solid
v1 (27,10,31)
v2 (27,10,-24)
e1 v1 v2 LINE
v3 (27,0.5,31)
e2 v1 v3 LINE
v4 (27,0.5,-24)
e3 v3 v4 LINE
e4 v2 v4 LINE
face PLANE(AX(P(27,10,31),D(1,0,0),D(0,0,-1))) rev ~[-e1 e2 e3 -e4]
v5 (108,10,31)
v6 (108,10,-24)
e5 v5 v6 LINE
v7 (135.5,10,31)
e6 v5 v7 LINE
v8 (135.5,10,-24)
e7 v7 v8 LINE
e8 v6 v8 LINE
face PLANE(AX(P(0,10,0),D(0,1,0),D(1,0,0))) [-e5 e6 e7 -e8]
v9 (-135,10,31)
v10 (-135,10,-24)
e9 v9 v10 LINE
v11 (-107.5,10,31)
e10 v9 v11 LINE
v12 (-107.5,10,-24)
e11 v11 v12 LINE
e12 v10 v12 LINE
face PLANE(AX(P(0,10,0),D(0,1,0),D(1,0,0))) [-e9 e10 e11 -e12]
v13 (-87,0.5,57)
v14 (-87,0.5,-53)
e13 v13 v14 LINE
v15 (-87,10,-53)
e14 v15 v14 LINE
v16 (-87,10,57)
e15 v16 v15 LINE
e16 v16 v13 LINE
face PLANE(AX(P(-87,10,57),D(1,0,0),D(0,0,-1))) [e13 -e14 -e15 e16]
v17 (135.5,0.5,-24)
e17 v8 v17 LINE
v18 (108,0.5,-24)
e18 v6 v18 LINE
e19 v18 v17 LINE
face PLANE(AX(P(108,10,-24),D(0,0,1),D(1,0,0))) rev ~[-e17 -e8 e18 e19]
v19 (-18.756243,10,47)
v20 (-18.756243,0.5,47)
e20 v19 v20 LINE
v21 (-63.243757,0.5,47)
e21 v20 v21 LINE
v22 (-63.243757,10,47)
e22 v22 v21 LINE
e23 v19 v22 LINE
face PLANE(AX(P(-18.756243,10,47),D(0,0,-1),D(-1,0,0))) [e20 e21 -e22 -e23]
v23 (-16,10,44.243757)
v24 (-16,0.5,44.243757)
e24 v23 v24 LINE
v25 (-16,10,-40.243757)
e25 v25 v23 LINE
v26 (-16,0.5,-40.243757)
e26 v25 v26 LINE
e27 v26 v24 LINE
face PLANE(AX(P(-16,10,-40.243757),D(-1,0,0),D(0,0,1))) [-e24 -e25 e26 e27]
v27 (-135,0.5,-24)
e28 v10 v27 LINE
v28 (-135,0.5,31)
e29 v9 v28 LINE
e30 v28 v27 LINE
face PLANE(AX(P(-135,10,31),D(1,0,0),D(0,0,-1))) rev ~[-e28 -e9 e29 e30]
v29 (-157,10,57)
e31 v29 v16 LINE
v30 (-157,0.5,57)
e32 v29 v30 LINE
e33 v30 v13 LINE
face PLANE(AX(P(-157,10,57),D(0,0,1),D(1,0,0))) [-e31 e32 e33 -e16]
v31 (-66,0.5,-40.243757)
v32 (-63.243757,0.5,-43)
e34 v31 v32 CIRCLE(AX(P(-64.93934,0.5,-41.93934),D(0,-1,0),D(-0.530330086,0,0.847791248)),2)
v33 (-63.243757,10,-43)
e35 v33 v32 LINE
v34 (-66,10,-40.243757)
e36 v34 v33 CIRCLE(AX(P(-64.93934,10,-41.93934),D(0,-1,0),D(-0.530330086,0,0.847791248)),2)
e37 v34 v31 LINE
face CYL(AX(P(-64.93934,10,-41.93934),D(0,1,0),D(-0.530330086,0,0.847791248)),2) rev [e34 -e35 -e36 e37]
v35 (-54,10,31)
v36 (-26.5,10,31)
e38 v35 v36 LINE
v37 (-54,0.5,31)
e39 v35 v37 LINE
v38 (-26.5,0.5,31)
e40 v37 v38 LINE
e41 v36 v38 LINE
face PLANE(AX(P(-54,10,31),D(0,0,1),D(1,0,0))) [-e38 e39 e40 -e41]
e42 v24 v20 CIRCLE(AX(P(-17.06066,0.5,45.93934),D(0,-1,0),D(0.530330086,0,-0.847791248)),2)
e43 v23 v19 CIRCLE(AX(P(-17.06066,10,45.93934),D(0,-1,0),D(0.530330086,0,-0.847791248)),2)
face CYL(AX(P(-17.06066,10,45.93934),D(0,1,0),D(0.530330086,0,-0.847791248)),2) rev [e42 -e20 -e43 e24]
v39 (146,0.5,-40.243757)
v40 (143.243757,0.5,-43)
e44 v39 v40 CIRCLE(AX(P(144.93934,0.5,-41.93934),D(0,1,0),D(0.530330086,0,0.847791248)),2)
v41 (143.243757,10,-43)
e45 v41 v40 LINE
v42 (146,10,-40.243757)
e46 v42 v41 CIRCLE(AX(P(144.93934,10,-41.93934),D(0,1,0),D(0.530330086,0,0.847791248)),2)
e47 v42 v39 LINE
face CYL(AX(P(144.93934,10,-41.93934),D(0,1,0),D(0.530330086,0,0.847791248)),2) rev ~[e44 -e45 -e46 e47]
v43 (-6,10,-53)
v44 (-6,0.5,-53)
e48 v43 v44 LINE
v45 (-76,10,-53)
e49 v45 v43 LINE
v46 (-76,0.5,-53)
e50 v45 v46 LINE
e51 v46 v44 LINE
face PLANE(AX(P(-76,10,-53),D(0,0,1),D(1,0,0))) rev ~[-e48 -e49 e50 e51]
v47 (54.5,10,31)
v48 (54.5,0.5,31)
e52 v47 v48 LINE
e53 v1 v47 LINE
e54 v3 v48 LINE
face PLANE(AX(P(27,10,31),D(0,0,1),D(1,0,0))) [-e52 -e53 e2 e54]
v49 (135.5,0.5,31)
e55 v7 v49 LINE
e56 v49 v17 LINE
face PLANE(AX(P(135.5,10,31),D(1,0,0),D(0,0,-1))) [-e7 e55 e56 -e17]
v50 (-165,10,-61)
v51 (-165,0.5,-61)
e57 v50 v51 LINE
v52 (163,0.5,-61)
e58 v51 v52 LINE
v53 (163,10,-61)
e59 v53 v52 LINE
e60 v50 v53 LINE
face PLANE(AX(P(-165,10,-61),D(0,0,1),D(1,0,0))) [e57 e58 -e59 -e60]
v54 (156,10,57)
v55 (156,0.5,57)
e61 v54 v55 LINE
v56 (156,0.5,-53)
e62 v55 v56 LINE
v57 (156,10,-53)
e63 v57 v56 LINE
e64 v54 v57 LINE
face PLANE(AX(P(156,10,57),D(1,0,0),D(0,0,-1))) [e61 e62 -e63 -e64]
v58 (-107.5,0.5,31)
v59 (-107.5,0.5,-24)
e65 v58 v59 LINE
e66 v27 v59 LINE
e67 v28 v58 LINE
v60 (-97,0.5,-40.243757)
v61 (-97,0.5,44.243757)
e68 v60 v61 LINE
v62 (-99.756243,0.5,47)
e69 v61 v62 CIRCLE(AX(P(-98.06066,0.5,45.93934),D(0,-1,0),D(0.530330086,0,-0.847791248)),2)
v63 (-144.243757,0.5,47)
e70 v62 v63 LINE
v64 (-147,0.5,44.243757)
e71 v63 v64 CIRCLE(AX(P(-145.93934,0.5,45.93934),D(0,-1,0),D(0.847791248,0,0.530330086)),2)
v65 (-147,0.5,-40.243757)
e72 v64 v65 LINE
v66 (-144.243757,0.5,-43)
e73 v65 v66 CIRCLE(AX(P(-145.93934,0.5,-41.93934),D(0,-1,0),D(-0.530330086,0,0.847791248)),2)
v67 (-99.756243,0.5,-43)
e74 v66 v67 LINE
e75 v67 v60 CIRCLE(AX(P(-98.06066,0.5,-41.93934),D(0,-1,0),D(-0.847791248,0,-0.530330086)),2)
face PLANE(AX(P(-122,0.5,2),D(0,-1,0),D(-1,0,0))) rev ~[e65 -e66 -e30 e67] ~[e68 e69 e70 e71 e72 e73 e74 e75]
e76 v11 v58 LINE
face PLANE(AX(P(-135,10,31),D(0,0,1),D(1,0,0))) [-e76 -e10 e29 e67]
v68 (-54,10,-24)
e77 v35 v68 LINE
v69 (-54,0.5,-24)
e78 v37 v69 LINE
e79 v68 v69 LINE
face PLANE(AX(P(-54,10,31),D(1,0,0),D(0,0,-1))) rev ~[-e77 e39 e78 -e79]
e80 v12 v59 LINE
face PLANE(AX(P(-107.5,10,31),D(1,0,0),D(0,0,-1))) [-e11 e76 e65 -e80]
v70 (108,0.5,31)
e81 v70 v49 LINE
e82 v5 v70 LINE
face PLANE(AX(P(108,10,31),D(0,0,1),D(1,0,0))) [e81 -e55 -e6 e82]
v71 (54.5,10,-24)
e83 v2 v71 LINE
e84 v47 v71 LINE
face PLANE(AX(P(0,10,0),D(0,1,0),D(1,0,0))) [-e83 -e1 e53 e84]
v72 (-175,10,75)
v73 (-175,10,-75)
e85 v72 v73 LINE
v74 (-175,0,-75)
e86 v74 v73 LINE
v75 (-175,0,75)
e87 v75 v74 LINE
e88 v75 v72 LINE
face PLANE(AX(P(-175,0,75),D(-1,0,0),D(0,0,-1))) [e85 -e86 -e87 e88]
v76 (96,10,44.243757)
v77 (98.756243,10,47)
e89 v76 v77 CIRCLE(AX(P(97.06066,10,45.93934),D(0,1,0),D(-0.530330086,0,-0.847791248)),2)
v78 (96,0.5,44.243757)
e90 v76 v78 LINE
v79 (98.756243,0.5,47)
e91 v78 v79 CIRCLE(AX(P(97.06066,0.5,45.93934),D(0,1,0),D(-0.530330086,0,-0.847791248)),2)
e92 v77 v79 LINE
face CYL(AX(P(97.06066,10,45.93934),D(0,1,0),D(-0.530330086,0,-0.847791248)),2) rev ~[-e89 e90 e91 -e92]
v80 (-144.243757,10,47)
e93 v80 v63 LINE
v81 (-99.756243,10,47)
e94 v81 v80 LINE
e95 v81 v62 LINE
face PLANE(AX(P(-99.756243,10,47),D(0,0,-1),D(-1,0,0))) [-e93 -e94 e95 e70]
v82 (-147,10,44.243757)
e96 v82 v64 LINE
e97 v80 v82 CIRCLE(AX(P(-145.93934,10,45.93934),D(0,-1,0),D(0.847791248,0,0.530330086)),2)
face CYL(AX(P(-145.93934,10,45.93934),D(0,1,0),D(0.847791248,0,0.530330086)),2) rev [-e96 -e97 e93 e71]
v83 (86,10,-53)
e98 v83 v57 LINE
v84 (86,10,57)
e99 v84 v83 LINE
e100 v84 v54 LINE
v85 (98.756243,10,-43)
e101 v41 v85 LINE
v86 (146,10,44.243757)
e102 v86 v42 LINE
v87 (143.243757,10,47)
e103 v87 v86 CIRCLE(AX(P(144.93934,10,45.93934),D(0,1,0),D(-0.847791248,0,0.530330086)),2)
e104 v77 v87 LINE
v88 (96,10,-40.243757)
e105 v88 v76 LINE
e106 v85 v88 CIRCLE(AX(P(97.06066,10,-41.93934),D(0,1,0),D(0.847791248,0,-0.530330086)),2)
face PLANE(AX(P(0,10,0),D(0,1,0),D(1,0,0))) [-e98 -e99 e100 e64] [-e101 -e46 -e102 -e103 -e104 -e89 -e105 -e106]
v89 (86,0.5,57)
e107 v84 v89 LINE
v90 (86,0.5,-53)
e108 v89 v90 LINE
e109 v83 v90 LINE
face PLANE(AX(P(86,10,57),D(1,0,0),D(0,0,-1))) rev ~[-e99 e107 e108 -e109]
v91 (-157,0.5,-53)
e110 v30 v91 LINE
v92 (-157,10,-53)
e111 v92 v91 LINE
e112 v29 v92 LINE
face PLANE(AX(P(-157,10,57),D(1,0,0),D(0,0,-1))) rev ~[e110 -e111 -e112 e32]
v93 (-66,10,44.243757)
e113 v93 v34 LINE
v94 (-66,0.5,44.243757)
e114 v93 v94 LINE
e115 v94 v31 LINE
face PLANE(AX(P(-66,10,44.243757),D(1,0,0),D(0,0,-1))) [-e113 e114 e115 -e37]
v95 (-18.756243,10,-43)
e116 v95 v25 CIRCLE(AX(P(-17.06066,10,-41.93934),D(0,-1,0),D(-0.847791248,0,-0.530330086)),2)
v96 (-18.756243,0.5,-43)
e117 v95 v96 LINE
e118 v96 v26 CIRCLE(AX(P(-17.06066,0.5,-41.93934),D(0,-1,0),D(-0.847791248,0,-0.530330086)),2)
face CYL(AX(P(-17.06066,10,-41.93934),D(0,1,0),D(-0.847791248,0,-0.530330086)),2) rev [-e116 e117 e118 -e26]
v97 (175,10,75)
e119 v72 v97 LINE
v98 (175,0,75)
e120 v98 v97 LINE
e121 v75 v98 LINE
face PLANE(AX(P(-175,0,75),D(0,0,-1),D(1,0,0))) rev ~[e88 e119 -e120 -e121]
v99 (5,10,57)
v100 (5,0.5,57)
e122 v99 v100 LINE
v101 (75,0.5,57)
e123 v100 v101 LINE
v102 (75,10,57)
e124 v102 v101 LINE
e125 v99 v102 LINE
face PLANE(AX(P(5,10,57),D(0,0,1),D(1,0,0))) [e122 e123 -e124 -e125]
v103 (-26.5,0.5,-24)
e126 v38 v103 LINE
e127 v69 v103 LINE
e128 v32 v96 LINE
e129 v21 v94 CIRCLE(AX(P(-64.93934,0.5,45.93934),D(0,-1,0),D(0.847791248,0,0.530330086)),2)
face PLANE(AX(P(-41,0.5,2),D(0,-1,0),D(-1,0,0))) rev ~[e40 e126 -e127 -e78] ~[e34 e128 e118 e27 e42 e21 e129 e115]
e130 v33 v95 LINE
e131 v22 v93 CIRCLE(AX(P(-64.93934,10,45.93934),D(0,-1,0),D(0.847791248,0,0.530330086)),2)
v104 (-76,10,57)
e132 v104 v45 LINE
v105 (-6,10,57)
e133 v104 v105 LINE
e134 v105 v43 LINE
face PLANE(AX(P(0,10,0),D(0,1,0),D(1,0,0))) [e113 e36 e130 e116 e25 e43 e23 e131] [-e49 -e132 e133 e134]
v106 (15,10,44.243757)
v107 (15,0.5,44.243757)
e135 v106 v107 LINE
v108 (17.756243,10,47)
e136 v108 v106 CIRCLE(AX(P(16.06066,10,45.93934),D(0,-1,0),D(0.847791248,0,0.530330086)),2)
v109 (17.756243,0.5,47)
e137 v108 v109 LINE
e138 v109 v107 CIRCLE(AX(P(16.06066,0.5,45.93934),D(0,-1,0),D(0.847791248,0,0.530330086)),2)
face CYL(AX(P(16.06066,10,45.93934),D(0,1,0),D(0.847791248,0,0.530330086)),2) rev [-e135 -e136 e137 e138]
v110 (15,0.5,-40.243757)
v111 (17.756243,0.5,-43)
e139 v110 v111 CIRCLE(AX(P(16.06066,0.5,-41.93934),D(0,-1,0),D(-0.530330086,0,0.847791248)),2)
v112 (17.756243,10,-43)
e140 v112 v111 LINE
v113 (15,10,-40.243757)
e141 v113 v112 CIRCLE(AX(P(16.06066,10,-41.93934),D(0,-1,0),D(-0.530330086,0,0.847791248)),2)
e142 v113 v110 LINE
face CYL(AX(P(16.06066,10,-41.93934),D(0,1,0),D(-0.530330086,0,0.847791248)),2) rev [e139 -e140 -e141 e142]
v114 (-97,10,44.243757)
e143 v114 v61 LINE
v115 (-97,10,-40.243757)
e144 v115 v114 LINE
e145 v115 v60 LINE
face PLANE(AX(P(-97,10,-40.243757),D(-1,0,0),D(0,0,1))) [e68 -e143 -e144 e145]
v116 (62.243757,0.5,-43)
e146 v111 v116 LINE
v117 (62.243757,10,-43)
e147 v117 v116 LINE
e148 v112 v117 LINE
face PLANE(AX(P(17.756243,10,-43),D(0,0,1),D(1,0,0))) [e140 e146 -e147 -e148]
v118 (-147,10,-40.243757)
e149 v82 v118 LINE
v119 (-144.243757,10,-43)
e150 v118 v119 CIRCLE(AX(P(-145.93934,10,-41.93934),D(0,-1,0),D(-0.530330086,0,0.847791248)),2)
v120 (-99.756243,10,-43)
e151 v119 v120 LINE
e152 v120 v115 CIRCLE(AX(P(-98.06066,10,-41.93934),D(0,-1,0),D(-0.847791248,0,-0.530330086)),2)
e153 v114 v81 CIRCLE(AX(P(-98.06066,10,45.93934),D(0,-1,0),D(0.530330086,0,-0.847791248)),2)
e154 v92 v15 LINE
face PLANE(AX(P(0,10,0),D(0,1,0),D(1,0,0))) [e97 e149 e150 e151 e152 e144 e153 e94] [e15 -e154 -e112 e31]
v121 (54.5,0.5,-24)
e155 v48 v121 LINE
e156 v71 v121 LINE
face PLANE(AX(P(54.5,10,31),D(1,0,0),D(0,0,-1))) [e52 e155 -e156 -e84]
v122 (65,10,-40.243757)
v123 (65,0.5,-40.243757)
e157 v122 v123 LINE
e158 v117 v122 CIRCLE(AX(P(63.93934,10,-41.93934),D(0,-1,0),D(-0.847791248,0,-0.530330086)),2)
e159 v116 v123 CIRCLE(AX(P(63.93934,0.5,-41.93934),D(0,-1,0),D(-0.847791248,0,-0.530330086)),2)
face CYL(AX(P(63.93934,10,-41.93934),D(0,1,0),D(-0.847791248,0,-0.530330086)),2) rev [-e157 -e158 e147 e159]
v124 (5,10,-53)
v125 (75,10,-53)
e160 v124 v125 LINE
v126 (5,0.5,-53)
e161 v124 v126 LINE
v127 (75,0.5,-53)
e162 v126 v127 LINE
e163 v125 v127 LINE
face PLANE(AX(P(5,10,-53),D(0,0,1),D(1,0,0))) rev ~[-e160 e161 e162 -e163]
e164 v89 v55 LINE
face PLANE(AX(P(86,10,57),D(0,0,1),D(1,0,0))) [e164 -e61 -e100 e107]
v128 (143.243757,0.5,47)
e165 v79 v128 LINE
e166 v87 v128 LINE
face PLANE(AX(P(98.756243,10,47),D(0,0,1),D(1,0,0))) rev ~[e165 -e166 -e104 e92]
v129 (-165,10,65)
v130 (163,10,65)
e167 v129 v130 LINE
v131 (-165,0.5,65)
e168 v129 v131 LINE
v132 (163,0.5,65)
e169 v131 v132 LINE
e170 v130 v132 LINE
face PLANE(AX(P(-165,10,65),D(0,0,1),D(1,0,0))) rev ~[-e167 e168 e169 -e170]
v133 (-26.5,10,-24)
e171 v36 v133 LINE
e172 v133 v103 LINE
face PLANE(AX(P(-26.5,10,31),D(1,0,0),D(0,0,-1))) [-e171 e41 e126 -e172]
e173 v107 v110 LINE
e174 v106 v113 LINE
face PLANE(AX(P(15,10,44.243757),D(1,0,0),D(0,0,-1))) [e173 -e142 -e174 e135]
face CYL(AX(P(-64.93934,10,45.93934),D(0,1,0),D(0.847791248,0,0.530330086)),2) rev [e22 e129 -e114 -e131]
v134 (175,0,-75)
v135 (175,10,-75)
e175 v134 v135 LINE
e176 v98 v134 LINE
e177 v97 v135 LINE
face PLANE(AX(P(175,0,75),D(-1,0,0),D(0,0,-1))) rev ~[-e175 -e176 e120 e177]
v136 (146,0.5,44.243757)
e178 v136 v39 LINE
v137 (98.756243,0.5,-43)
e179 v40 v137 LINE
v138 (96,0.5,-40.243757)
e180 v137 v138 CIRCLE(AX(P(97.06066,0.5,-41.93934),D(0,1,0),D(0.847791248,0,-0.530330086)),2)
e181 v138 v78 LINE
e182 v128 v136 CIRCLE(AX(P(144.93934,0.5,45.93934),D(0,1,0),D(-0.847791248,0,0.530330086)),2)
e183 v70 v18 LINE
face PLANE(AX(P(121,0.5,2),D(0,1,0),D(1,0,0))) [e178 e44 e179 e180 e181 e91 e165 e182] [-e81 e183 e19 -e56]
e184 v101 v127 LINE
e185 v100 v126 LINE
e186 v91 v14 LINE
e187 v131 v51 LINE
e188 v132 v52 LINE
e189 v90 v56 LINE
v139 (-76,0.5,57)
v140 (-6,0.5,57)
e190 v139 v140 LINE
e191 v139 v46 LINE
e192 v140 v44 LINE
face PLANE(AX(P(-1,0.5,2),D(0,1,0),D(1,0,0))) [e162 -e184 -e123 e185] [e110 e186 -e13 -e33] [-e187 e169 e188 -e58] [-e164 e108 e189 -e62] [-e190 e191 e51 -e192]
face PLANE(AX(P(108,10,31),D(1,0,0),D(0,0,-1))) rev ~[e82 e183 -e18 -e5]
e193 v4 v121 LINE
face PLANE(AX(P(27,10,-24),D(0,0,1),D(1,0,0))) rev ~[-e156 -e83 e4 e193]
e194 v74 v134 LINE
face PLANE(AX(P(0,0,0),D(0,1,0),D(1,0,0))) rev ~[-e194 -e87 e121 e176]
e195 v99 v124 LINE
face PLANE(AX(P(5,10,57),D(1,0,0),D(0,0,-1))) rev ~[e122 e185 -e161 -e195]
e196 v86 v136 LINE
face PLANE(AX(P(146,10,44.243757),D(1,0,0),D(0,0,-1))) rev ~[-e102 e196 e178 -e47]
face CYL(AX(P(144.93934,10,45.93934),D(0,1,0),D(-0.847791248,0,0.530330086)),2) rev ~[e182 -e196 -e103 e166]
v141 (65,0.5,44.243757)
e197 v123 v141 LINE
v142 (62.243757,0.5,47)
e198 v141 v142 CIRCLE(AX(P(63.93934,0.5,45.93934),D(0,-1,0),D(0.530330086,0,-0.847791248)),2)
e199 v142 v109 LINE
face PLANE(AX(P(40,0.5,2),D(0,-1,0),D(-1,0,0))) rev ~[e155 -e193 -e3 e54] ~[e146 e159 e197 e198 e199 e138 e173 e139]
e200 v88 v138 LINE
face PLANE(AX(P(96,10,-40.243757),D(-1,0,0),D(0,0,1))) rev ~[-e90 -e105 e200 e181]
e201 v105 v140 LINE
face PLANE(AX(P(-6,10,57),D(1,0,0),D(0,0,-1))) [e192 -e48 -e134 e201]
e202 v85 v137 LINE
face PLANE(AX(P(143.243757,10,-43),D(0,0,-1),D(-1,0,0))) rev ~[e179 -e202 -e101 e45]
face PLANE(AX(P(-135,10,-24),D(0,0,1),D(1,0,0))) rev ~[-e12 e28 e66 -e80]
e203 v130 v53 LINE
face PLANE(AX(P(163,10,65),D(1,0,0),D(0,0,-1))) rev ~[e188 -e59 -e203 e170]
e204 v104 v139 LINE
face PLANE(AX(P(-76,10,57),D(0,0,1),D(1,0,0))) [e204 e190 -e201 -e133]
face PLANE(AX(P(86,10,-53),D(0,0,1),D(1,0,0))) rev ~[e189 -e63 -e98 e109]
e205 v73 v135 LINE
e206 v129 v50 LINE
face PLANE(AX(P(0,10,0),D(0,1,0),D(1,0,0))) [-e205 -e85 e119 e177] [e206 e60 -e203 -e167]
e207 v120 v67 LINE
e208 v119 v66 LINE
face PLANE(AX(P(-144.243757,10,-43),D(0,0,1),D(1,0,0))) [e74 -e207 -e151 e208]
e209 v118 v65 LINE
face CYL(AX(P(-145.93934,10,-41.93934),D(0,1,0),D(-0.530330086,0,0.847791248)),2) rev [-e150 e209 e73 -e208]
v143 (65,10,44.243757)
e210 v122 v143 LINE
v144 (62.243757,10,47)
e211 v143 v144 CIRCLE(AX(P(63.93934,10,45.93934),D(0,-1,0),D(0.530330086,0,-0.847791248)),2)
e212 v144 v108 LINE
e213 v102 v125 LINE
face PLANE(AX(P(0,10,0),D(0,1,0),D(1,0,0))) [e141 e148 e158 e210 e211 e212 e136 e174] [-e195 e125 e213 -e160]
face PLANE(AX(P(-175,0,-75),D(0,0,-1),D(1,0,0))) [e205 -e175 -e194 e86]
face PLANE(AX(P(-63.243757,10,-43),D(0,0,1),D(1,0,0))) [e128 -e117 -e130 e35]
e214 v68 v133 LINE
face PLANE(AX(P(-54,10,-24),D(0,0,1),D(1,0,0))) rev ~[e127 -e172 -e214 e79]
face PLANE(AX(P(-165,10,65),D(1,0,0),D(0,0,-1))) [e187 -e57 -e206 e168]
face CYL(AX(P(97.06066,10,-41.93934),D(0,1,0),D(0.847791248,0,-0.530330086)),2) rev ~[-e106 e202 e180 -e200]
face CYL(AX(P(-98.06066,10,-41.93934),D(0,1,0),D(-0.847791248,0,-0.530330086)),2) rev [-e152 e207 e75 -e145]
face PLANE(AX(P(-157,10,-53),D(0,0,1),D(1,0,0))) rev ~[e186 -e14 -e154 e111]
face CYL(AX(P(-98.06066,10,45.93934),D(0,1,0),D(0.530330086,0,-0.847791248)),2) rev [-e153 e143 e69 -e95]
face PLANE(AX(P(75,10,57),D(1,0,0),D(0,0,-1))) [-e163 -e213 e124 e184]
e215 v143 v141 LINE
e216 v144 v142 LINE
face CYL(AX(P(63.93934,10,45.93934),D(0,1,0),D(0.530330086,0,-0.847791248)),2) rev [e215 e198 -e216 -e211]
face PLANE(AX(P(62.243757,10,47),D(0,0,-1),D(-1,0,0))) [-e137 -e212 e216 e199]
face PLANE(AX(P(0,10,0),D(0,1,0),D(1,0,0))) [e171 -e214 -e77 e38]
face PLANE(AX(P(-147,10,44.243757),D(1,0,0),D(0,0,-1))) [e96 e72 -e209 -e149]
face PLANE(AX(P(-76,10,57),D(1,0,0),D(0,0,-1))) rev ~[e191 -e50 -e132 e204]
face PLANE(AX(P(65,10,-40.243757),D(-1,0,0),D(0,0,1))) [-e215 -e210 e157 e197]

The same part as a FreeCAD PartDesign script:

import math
import FreeCAD as App
import Part
import Sketcher

V = App.Vector

doc = App.newDocument("Part")
body = doc.addObject("PartDesign::Body", "Body")

sketch1 = body.newObject("Sketcher::SketchObject", "Sketch")
sketch1.AttachmentSupport = (doc.getObject("XZ_Plane"), [""])
sketch1.MapMode = "FlatFace"
sketch1.addGeometry(Part.LineSegment(V(-175, -75, 0), V(-175, 75, 0)), False)
sketch1.addGeometry(Part.LineSegment(V(-175, 75, 0), V(175, 75, 0)), False)
sketch1.addGeometry(Part.LineSegment(V(175, 75, 0), V(175, -75, 0)), False)
sketch1.addGeometry(Part.LineSegment(V(175, -75, 0), V(-175, -75, 0)), False)
sketch1.addConstraint(Sketcher.Constraint("Coincident", 0, 2, 1, 1))
sketch1.addConstraint(Sketcher.Constraint("Coincident", 1, 2, 2, 1))
sketch1.addConstraint(Sketcher.Constraint("Coincident", 2, 2, 3, 1))
sketch1.addConstraint(Sketcher.Constraint("Coincident", 3, 2, 0, 1))
sketch1.addConstraint(Sketcher.Constraint("Vertical", 0))
sketch1.addConstraint(Sketcher.Constraint("Horizontal", 1))
sketch1.addConstraint(Sketcher.Constraint("Vertical", 2))
sketch1.addConstraint(Sketcher.Constraint("Horizontal", 3))
sketch1.addConstraint(Sketcher.Constraint("Symmetric", 0, 2, 2, 2, -1, 1))
sketch1.addConstraint(Sketcher.Constraint("DistanceX", 1, 1, 1, 2, 350.0))
sketch1.addConstraint(Sketcher.Constraint("DistanceY", 0, 1, 0, 2, 150.0))
pad1 = body.newObject("PartDesign::Pad", "Pad")
pad1.Profile = sketch1
pad1.Length = 10
pad1.Reversed = True

sketch2 = body.newObject("Sketcher::SketchObject", "Sketch001")
sketch2.AttachmentSupport = (doc.getObject("XZ_Plane"), [""])
sketch2.MapMode = "FlatFace"
sketch2.AttachmentOffset = App.Placement(V(0, 0, -10), App.Rotation())
sketch2.addGeometry(Part.LineSegment(V(-165, -61, 0), V(-165, 65, 0)), False)
sketch2.addGeometry(Part.LineSegment(V(-165, 65, 0), V(163, 65, 0)), False)
sketch2.addGeometry(Part.LineSegment(V(163, 65, 0), V(163, -61, 0)), False)
sketch2.addGeometry(Part.LineSegment(V(163, -61, 0), V(-165, -61, 0)), False)
sketch2.addGeometry(Part.LineSegment(V(-87, 57, 0), V(-157, 57, 0)), False)
sketch2.addGeometry(Part.LineSegment(V(-157, 57, 0), V(-157, -53, 0)), False)
sketch2.addGeometry(Part.LineSegment(V(-157, -53, 0), V(-87, -53, 0)), False)
sketch2.addGeometry(Part.LineSegment(V(-87, -53, 0), V(-87, 57, 0)), False)
sketch2.addGeometry(Part.LineSegment(V(-6, 57, 0), V(-76, 57, 0)), False)
sketch2.addGeometry(Part.LineSegment(V(-76, 57, 0), V(-76, -53, 0)), False)
sketch2.addGeometry(Part.LineSegment(V(-76, -53, 0), V(-6, -53, 0)), False)
sketch2.addGeometry(Part.LineSegment(V(-6, -53, 0), V(-6, 57, 0)), False)
sketch2.addGeometry(Part.LineSegment(V(75, 57, 0), V(5, 57, 0)), False)
sketch2.addGeometry(Part.LineSegment(V(5, 57, 0), V(5, -53, 0)), False)
sketch2.addGeometry(Part.LineSegment(V(5, -53, 0), V(75, -53, 0)), False)
sketch2.addGeometry(Part.LineSegment(V(75, -53, 0), V(75, 57, 0)), False)
sketch2.addGeometry(Part.LineSegment(V(156, 57, 0), V(86, 57, 0)), False)
sketch2.addGeometry(Part.LineSegment(V(86, 57, 0), V(86, -53, 0)), False)
sketch2.addGeometry(Part.LineSegment(V(86, -53, 0), V(156, -53, 0)), False)
sketch2.addGeometry(Part.LineSegment(V(156, -53, 0), V(156, 57, 0)), False)
sketch2.addGeometry(Part.LineSegment(V(-147, -40.2, 0), V(-147, 44.2, 0)), False)
sketch2.addGeometry(Part.ArcOfCircle(Part.Circle(V(-145.9, 45.9, 0), V(0, 0, 1), 2), math.radians(32), math.radians(238)), False)
sketch2.addGeometry(Part.LineSegment(V(-144.2, 47, 0), V(-99.8, 47, 0)), False)
sketch2.addGeometry(Part.ArcOfCircle(Part.Circle(V(-98.1, 45.9, 0), V(0, 0, 1), 2), math.radians(-58), math.radians(148)), False)
sketch2.addGeometry(Part.LineSegment(V(-97, 44.2, 0), V(-97, -40.2, 0)), False)
sketch2.addGeometry(Part.ArcOfCircle(Part.Circle(V(-98.1, -41.9, 0), V(0, 0, 1), 2), math.radians(-148), math.radians(58)), False)
sketch2.addGeometry(Part.LineSegment(V(-99.8, -43, 0), V(-144.2, -43, 0)), False)
sketch2.addGeometry(Part.ArcOfCircle(Part.Circle(V(-145.9, -41.9, 0), V(0, 0, 1), 2), math.radians(122), math.radians(328)), False)
sketch2.addGeometry(Part.LineSegment(V(-135, 31, 0), V(-135, -24, 0)), False)
sketch2.addGeometry(Part.LineSegment(V(-135, -24, 0), V(-107.5, -24, 0)), False)
sketch2.addGeometry(Part.LineSegment(V(-107.5, -24, 0), V(-107.5, 31, 0)), False)
sketch2.addGeometry(Part.LineSegment(V(-107.5, 31, 0), V(-135, 31, 0)), False)
sketch2.addGeometry(Part.LineSegment(V(-66, -40.2, 0), V(-66, 44.2, 0)), False)
sketch2.addGeometry(Part.ArcOfCircle(Part.Circle(V(-64.9, 45.9, 0), V(0, 0, 1), 2), math.radians(32), math.radians(238)), False)
sketch2.addGeometry(Part.LineSegment(V(-63.2, 47, 0), V(-18.8, 47, 0)), False)
sketch2.addGeometry(Part.ArcOfCircle(Part.Circle(V(-17.1, 45.9, 0), V(0, 0, 1), 2), math.radians(-58), math.radians(148)), False)
sketch2.addGeometry(Part.LineSegment(V(-16, 44.2, 0), V(-16, -40.2, 0)), False)
sketch2.addGeometry(Part.ArcOfCircle(Part.Circle(V(-17.1, -41.9, 0), V(0, 0, 1), 2), math.radians(-148), math.radians(58)), False)
sketch2.addGeometry(Part.LineSegment(V(-18.8, -43, 0), V(-63.2, -43, 0)), False)
sketch2.addGeometry(Part.ArcOfCircle(Part.Circle(V(-64.9, -41.9, 0), V(0, 0, 1), 2), math.radians(122), math.radians(328)), False)
sketch2.addGeometry(Part.LineSegment(V(-54, 31, 0), V(-54, -24, 0)), False)
sketch2.addGeometry(Part.LineSegment(V(-54, -24, 0), V(-26.5, -24, 0)), False)
sketch2.addGeometry(Part.LineSegment(V(-26.5, -24, 0), V(-26.5, 31, 0)), False)
sketch2.addGeometry(Part.LineSegment(V(-26.5, 31, 0), V(-54, 31, 0)), False)
sketch2.addGeometry(Part.LineSegment(V(15, -40.2, 0), V(15, 44.2, 0)), False)
sketch2.addGeometry(Part.ArcOfCircle(Part.Circle(V(16.1, 45.9, 0), V(0, 0, 1), 2), math.radians(32), math.radians(238)), False)
sketch2.addGeometry(Part.LineSegment(V(17.8, 47, 0), V(62.2, 47, 0)), False)
sketch2.addGeometry(Part.ArcOfCircle(Part.Circle(V(63.9, 45.9, 0), V(0, 0, 1), 2), math.radians(-58), math.radians(148)), False)
sketch2.addGeometry(Part.LineSegment(V(65, 44.2, 0), V(65, -40.2, 0)), False)
sketch2.addGeometry(Part.ArcOfCircle(Part.Circle(V(63.9, -41.9, 0), V(0, 0, 1), 2), math.radians(-148), math.radians(58)), False)
sketch2.addGeometry(Part.LineSegment(V(62.2, -43, 0), V(17.8, -43, 0)), False)
sketch2.addGeometry(Part.ArcOfCircle(Part.Circle(V(16.1, -41.9, 0), V(0, 0, 1), 2), math.radians(122), math.radians(328)), False)
sketch2.addGeometry(Part.LineSegment(V(27, 31, 0), V(27, -24, 0)), False)
sketch2.addGeometry(Part.LineSegment(V(27, -24, 0), V(54.5, -24, 0)), False)
sketch2.addGeometry(Part.LineSegment(V(54.5, -24, 0), V(54.5, 31, 0)), False)
sketch2.addGeometry(Part.LineSegment(V(54.5, 31, 0), V(27, 31, 0)), False)
sketch2.addGeometry(Part.LineSegment(V(98.8, 47, 0), V(143.2, 47, 0)), False)
sketch2.addGeometry(Part.ArcOfCircle(Part.Circle(V(144.9, 45.9, 0), V(0, 0, 1), 2), math.radians(-58), math.radians(148)), False)
sketch2.addGeometry(Part.LineSegment(V(146, 44.2, 0), V(146, -40.2, 0)), False)
sketch2.addGeometry(Part.ArcOfCircle(Part.Circle(V(144.9, -41.9, 0), V(0, 0, 1), 2), math.radians(-148), math.radians(58)), False)
sketch2.addGeometry(Part.LineSegment(V(143.2, -43, 0), V(98.8, -43, 0)), False)
sketch2.addGeometry(Part.ArcOfCircle(Part.Circle(V(97.1, -41.9, 0), V(0, 0, 1), 2), math.radians(122), math.radians(328)), False)
sketch2.addGeometry(Part.LineSegment(V(96, -40.2, 0), V(96, 44.2, 0)), False)
sketch2.addGeometry(Part.ArcOfCircle(Part.Circle(V(97.1, 45.9, 0), V(0, 0, 1), 2), math.radians(32), math.radians(238)), False)
sketch2.addGeometry(Part.LineSegment(V(135.5, 31, 0), V(108, 31, 0)), False)
sketch2.addGeometry(Part.LineSegment(V(108, 31, 0), V(108, -24, 0)), False)
sketch2.addGeometry(Part.LineSegment(V(108, -24, 0), V(135.5, -24, 0)), False)
sketch2.addGeometry(Part.LineSegment(V(135.5, -24, 0), V(135.5, 31, 0)), False)
sketch2.addConstraint(Sketcher.Constraint("Coincident", 0, 2, 1, 1))
sketch2.addConstraint(Sketcher.Constraint("Coincident", 1, 2, 2, 1))
sketch2.addConstraint(Sketcher.Constraint("Coincident", 2, 2, 3, 1))
sketch2.addConstraint(Sketcher.Constraint("Coincident", 3, 2, 0, 1))
sketch2.addConstraint(Sketcher.Constraint("Coincident", 4, 2, 5, 1))
sketch2.addConstraint(Sketcher.Constraint("Coincident", 5, 2, 6, 1))
sketch2.addConstraint(Sketcher.Constraint("Coincident", 6, 2, 7, 1))
sketch2.addConstraint(Sketcher.Constraint("Coincident", 7, 2, 4, 1))
sketch2.addConstraint(Sketcher.Constraint("Coincident", 8, 2, 9, 1))
sketch2.addConstraint(Sketcher.Constraint("Coincident", 9, 2, 10, 1))
sketch2.addConstraint(Sketcher.Constraint("Coincident", 10, 2, 11, 1))
sketch2.addConstraint(Sketcher.Constraint("Coincident", 11, 2, 8, 1))
sketch2.addConstraint(Sketcher.Constraint("Coincident", 12, 2, 13, 1))
sketch2.addConstraint(Sketcher.Constraint("Coincident", 13, 2, 14, 1))
sketch2.addConstraint(Sketcher.Constraint("Coincident", 14, 2, 15, 1))
sketch2.addConstraint(Sketcher.Constraint("Coincident", 15, 2, 12, 1))
sketch2.addConstraint(Sketcher.Constraint("Coincident", 16, 2, 17, 1))
sketch2.addConstraint(Sketcher.Constraint("Coincident", 17, 2, 18, 1))
sketch2.addConstraint(Sketcher.Constraint("Coincident", 18, 2, 19, 1))
sketch2.addConstraint(Sketcher.Constraint("Coincident", 19, 2, 16, 1))
sketch2.addConstraint(Sketcher.Constraint("Coincident", 20, 2, 21, 2))
sketch2.addConstraint(Sketcher.Constraint("Coincident", 21, 1, 22, 1))
sketch2.addConstraint(Sketcher.Constraint("Coincident", 22, 2, 23, 2))
sketch2.addConstraint(Sketcher.Constraint("Coincident", 23, 1, 24, 1))
sketch2.addConstraint(Sketcher.Constraint("Coincident", 24, 2, 25, 2))
sketch2.addConstraint(Sketcher.Constraint("Coincident", 25, 1, 26, 1))
sketch2.addConstraint(Sketcher.Constraint("Coincident", 26, 2, 27, 2))
sketch2.addConstraint(Sketcher.Constraint("Coincident", 27, 1, 20, 1))
sketch2.addConstraint(Sketcher.Constraint("Coincident", 28, 2, 29, 1))
sketch2.addConstraint(Sketcher.Constraint("Coincident", 29, 2, 30, 1))
sketch2.addConstraint(Sketcher.Constraint("Coincident", 30, 2, 31, 1))
sketch2.addConstraint(Sketcher.Constraint("Coincident", 31, 2, 28, 1))
sketch2.addConstraint(Sketcher.Constraint("Coincident", 32, 2, 33, 2))
sketch2.addConstraint(Sketcher.Constraint("Coincident", 33, 1, 34, 1))
sketch2.addConstraint(Sketcher.Constraint("Coincident", 34, 2, 35, 2))
sketch2.addConstraint(Sketcher.Constraint("Coincident", 35, 1, 36, 1))
sketch2.addConstraint(Sketcher.Constraint("Coincident", 36, 2, 37, 2))
sketch2.addConstraint(Sketcher.Constraint("Coincident", 37, 1, 38, 1))
sketch2.addConstraint(Sketcher.Constraint("Coincident", 38, 2, 39, 2))
sketch2.addConstraint(Sketcher.Constraint("Coincident", 39, 1, 32, 1))
sketch2.addConstraint(Sketcher.Constraint("Coincident", 40, 2, 41, 1))
sketch2.addConstraint(Sketcher.Constraint("Coincident", 41, 2, 42, 1))
sketch2.addConstraint(Sketcher.Constraint("Coincident", 42, 2, 43, 1))
sketch2.addConstraint(Sketcher.Constraint("Coincident", 43, 2, 40, 1))
sketch2.addConstraint(Sketcher.Constraint("Coincident", 44, 2, 45, 2))
sketch2.addConstraint(Sketcher.Constraint("Coincident", 45, 1, 46, 1))
sketch2.addConstraint(Sketcher.Constraint("Coincident", 46, 2, 47, 2))
sketch2.addConstraint(Sketcher.Constraint("Coincident", 47, 1, 48, 1))
sketch2.addConstraint(Sketcher.Constraint("Coincident", 48, 2, 49, 2))
sketch2.addConstraint(Sketcher.Constraint("Coincident", 49, 1, 50, 1))
sketch2.addConstraint(Sketcher.Constraint("Coincident", 50, 2, 51, 2))
sketch2.addConstraint(Sketcher.Constraint("Coincident", 51, 1, 44, 1))
sketch2.addConstraint(Sketcher.Constraint("Coincident", 52, 2, 53, 1))
sketch2.addConstraint(Sketcher.Constraint("Coincident", 53, 2, 54, 1))
sketch2.addConstraint(Sketcher.Constraint("Coincident", 54, 2, 55, 1))
sketch2.addConstraint(Sketcher.Constraint("Coincident", 55, 2, 52, 1))
sketch2.addConstraint(Sketcher.Constraint("Coincident", 56, 2, 57, 2))
sketch2.addConstraint(Sketcher.Constraint("Coincident", 57, 1, 58, 1))
sketch2.addConstraint(Sketcher.Constraint("Coincident", 58, 2, 59, 2))
sketch2.addConstraint(Sketcher.Constraint("Coincident", 59, 1, 60, 1))
sketch2.addConstraint(Sketcher.Constraint("Coincident", 60, 2, 61, 2))
sketch2.addConstraint(Sketcher.Constraint("Coincident", 61, 1, 62, 1))
sketch2.addConstraint(Sketcher.Constraint("Coincident", 62, 2, 63, 2))
sketch2.addConstraint(Sketcher.Constraint("Coincident", 63, 1, 56, 1))
sketch2.addConstraint(Sketcher.Constraint("Coincident", 64, 2, 65, 1))
sketch2.addConstraint(Sketcher.Constraint("Coincident", 65, 2, 66, 1))
sketch2.addConstraint(Sketcher.Constraint("Coincident", 66, 2, 67, 1))
sketch2.addConstraint(Sketcher.Constraint("Coincident", 67, 2, 64, 1))
sketch2.addConstraint(Sketcher.Constraint("Vertical", 0))
sketch2.addConstraint(Sketcher.Constraint("Horizontal", 1))
sketch2.addConstraint(Sketcher.Constraint("Vertical", 2))
sketch2.addConstraint(Sketcher.Constraint("Horizontal", 3))
sketch2.addConstraint(Sketcher.Constraint("Horizontal", 4))
sketch2.addConstraint(Sketcher.Constraint("Vertical", 5))
sketch2.addConstraint(Sketcher.Constraint("Horizontal", 6))
sketch2.addConstraint(Sketcher.Constraint("Vertical", 7))
sketch2.addConstraint(Sketcher.Constraint("Horizontal", 8))
sketch2.addConstraint(Sketcher.Constraint("Vertical", 9))
sketch2.addConstraint(Sketcher.Constraint("Horizontal", 10))
sketch2.addConstraint(Sketcher.Constraint("Vertical", 11))
sketch2.addConstraint(Sketcher.Constraint("Horizontal", 12))
sketch2.addConstraint(Sketcher.Constraint("Vertical", 13))
sketch2.addConstraint(Sketcher.Constraint("Horizontal", 14))
sketch2.addConstraint(Sketcher.Constraint("Vertical", 15))
sketch2.addConstraint(Sketcher.Constraint("Horizontal", 16))
sketch2.addConstraint(Sketcher.Constraint("Vertical", 17))
sketch2.addConstraint(Sketcher.Constraint("Horizontal", 18))
sketch2.addConstraint(Sketcher.Constraint("Vertical", 19))
sketch2.addConstraint(Sketcher.Constraint("Vertical", 20))
sketch2.addConstraint(Sketcher.Constraint("Horizontal", 22))
sketch2.addConstraint(Sketcher.Constraint("Vertical", 24))
sketch2.addConstraint(Sketcher.Constraint("Horizontal", 26))
sketch2.addConstraint(Sketcher.Constraint("Vertical", 28))
sketch2.addConstraint(Sketcher.Constraint("Horizontal", 29))
sketch2.addConstraint(Sketcher.Constraint("Vertical", 30))
sketch2.addConstraint(Sketcher.Constraint("Horizontal", 31))
sketch2.addConstraint(Sketcher.Constraint("Vertical", 32))
sketch2.addConstraint(Sketcher.Constraint("Horizontal", 34))
sketch2.addConstraint(Sketcher.Constraint("Vertical", 36))
sketch2.addConstraint(Sketcher.Constraint("Horizontal", 38))
sketch2.addConstraint(Sketcher.Constraint("Vertical", 40))
sketch2.addConstraint(Sketcher.Constraint("Horizontal", 41))
sketch2.addConstraint(Sketcher.Constraint("Vertical", 42))
sketch2.addConstraint(Sketcher.Constraint("Horizontal", 43))
sketch2.addConstraint(Sketcher.Constraint("Vertical", 44))
sketch2.addConstraint(Sketcher.Constraint("Horizontal", 46))
sketch2.addConstraint(Sketcher.Constraint("Vertical", 48))
sketch2.addConstraint(Sketcher.Constraint("Horizontal", 50))
sketch2.addConstraint(Sketcher.Constraint("Vertical", 52))
sketch2.addConstraint(Sketcher.Constraint("Horizontal", 53))
sketch2.addConstraint(Sketcher.Constraint("Vertical", 54))
sketch2.addConstraint(Sketcher.Constraint("Horizontal", 55))
sketch2.addConstraint(Sketcher.Constraint("Horizontal", 56))
sketch2.addConstraint(Sketcher.Constraint("Vertical", 58))
sketch2.addConstraint(Sketcher.Constraint("Horizontal", 60))
sketch2.addConstraint(Sketcher.Constraint("Vertical", 62))
sketch2.addConstraint(Sketcher.Constraint("Horizontal", 64))
sketch2.addConstraint(Sketcher.Constraint("Vertical", 65))
sketch2.addConstraint(Sketcher.Constraint("Horizontal", 66))
sketch2.addConstraint(Sketcher.Constraint("Vertical", 67))
sketch2.addConstraint(Sketcher.Constraint("Equal", 21, 23))
sketch2.addConstraint(Sketcher.Constraint("Equal", 23, 25))
sketch2.addConstraint(Sketcher.Constraint("Equal", 25, 27))
sketch2.addConstraint(Sketcher.Constraint("Equal", 27, 33))
sketch2.addConstraint(Sketcher.Constraint("Equal", 33, 35))
sketch2.addConstraint(Sketcher.Constraint("Equal", 35, 37))
sketch2.addConstraint(Sketcher.Constraint("Equal", 37, 39))
sketch2.addConstraint(Sketcher.Constraint("Equal", 39, 45))
sketch2.addConstraint(Sketcher.Constraint("Equal", 45, 47))
sketch2.addConstraint(Sketcher.Constraint("Equal", 47, 49))
sketch2.addConstraint(Sketcher.Constraint("Equal", 49, 51))
sketch2.addConstraint(Sketcher.Constraint("Equal", 51, 57))
sketch2.addConstraint(Sketcher.Constraint("Equal", 57, 59))
sketch2.addConstraint(Sketcher.Constraint("Equal", 59, 61))
sketch2.addConstraint(Sketcher.Constraint("Equal", 61, 63))
sketch2.addConstraint(Sketcher.Constraint("Horizontal", 21, 3, 23, 3))
sketch2.addConstraint(Sketcher.Constraint("Horizontal", 25, 3, 27, 3))
sketch2.addConstraint(Sketcher.Constraint("Horizontal", 23, 3, 33, 3))
sketch2.addConstraint(Sketcher.Constraint("Horizontal", 33, 3, 35, 3))
sketch2.addConstraint(Sketcher.Constraint("Horizontal", 27, 3, 37, 3))
sketch2.addConstraint(Sketcher.Constraint("Horizontal", 37, 3, 39, 3))
sketch2.addConstraint(Sketcher.Constraint("Horizontal", 35, 3, 45, 3))
sketch2.addConstraint(Sketcher.Constraint("Horizontal", 45, 3, 47, 3))
sketch2.addConstraint(Sketcher.Constraint("Horizontal", 39, 3, 49, 3))
sketch2.addConstraint(Sketcher.Constraint("Horizontal", 49, 3, 51, 3))
sketch2.addConstraint(Sketcher.Constraint("Horizontal", 47, 3, 57, 3))
sketch2.addConstraint(Sketcher.Constraint("Horizontal", 51, 3, 59, 3))
sketch2.addConstraint(Sketcher.Constraint("Horizontal", 59, 3, 61, 3))
sketch2.addConstraint(Sketcher.Constraint("Horizontal", 57, 3, 63, 3))
sketch2.addConstraint(Sketcher.Constraint("Horizontal", 7, 2, 8, 2))
sketch2.addConstraint(Sketcher.Constraint("Horizontal", 6, 2, 9, 2))
sketch2.addConstraint(Sketcher.Constraint("Horizontal", 11, 2, 12, 2))
sketch2.addConstraint(Sketcher.Constraint("Horizontal", 10, 2, 13, 2))
sketch2.addConstraint(Sketcher.Constraint("Horizontal", 15, 2, 16, 2))
sketch2.addConstraint(Sketcher.Constraint("Horizontal", 14, 2, 17, 2))
sketch2.addConstraint(Sketcher.Constraint("Horizontal", 20, 2, 23, 1))
sketch2.addConstraint(Sketcher.Constraint("Horizontal", 24, 2, 27, 1))
sketch2.addConstraint(Sketcher.Constraint("Horizontal", 23, 1, 32, 2))
sketch2.addConstraint(Sketcher.Constraint("Horizontal", 22, 2, 33, 1))
sketch2.addConstraint(Sketcher.Constraint("Horizontal", 32, 2, 35, 1))
sketch2.addConstraint(Sketcher.Constraint("Horizontal", 27, 1, 36, 2))
sketch2.addConstraint(Sketcher.Constraint("Horizontal", 26, 2, 37, 1))
sketch2.addConstraint(Sketcher.Constraint("Horizontal", 36, 2, 39, 1))
sketch2.addConstraint(Sketcher.Constraint("Horizontal", 29, 2, 40, 2))
sketch2.addConstraint(Sketcher.Constraint("Horizontal", 31, 2, 42, 2))
sketch2.addConstraint(Sketcher.Constraint("Horizontal", 35, 1, 44, 2))
sketch2.addConstraint(Sketcher.Constraint("Horizontal", 34, 2, 45, 1))
sketch2.addConstraint(Sketcher.Constraint("Horizontal", 44, 2, 47, 1))
sketch2.addConstraint(Sketcher.Constraint("Horizontal", 39, 1, 48, 2))
sketch2.addConstraint(Sketcher.Constraint("Horizontal", 38, 2, 49, 1))
sketch2.addConstraint(Sketcher.Constraint("Horizontal", 48, 2, 51, 1))
sketch2.addConstraint(Sketcher.Constraint("Horizontal", 41, 2, 52, 2))
sketch2.addConstraint(Sketcher.Constraint("Horizontal", 43, 2, 54, 2))
sketch2.addConstraint(Sketcher.Constraint("Horizontal", 46, 2, 56, 2))
sketch2.addConstraint(Sketcher.Constraint("Horizontal", 47, 1, 57, 1))
sketch2.addConstraint(Sketcher.Constraint("Horizontal", 51, 1, 58, 2))
sketch2.addConstraint(Sketcher.Constraint("Horizontal", 50, 2, 59, 1))
sketch2.addConstraint(Sketcher.Constraint("Horizontal", 58, 2, 61, 1))
sketch2.addConstraint(Sketcher.Constraint("Horizontal", 57, 1, 62, 2))
sketch2.addConstraint(Sketcher.Constraint("Horizontal", 55, 2, 64, 2))
sketch2.addConstraint(Sketcher.Constraint("Horizontal", 53, 2, 65, 2))
sketch2.addConstraint(Sketcher.Constraint("Vertical", 23, 3, 25, 3))
sketch2.addConstraint(Sketcher.Constraint("Vertical", 22, 2, 25, 1))
sketch2.addConstraint(Sketcher.Constraint("Equal", 6, 8))
sketch2.addConstraint(Sketcher.Constraint("Equal", 10, 12))
sketch2.addConstraint(Sketcher.Constraint("Equal", 14, 16))
sketch2.addConstraint(Sketcher.Constraint("Equal", 26, 34))
sketch2.addConstraint(Sketcher.Constraint("Equal", 31, 41))
sketch2.addConstraint(Sketcher.Constraint("Equal", 38, 46))
sketch2.addConstraint(Sketcher.Constraint("Equal", 43, 53))
sketch2.addConstraint(Sketcher.Constraint("Equal", 50, 56))
sketch2.addConstraint(Sketcher.Constraint("Equal", 55, 64))
sketch2.addConstraint(Sketcher.Constraint("Radius", 21, 2.0))
sketch2.addConstraint(Sketcher.Constraint("DistanceX", 1, 1, 1, 2, 328.0))
sketch2.addConstraint(Sketcher.Constraint("DistanceX", 4, 2, 4, 1, 70.0))
sketch2.addConstraint(Sketcher.Constraint("DistanceY", 0, 1, 0, 2, 126.0))
sketch2.addConstraint(Sketcher.Constraint("DistanceY", 5, 2, 5, 1, 110.0))
sketch2.addConstraint(Sketcher.Constraint("DistanceY", 28, 2, 28, 1, 55.0))
sketch2.addConstraint(Sketcher.Constraint("DistanceX", 29, 1, 29, 2, 27.5))
sketch2.addConstraint(Sketcher.Constraint("DistanceX", 0, 2, -1, 1, 165.0))
sketch2.addConstraint(Sketcher.Constraint("DistanceY", -1, 1, 0, 2, 65.0))
sketch2.addConstraint(Sketcher.Constraint("DistanceX", 4, 2, -1, 1, 157.0))
sketch2.addConstraint(Sketcher.Constraint("DistanceY", -1, 1, 4, 2, 57.0))
sketch2.addConstraint(Sketcher.Constraint("DistanceX", 8, 2, -1, 1, 76.0))
sketch2.addConstraint(Sketcher.Constraint("DistanceX", -1, 1, 12, 2, 5.0))
sketch2.addConstraint(Sketcher.Constraint("DistanceX", -1, 1, 16, 2, 86.0))
sketch2.addConstraint(Sketcher.Constraint("DistanceX", 20, 2, -1, 1, 147.0))
sketch2.addConstraint(Sketcher.Constraint("DistanceY", -1, 1, 21, 1, 47.0))
sketch2.addConstraint(Sketcher.Constraint("DistanceX", 23, 1, -1, 1, 97.0))
sketch2.addConstraint(Sketcher.Constraint("DistanceY", 25, 1, -1, 1, 43.0))
sketch2.addConstraint(Sketcher.Constraint("DistanceX", 28, 2, -1, 1, 135.0))
sketch2.addConstraint(Sketcher.Constraint("DistanceY", 28, 2, -1, 1, 24.0))
sketch2.addConstraint(Sketcher.Constraint("DistanceX", 32, 2, -1, 1, 66.0))
sketch2.addConstraint(Sketcher.Constraint("DistanceX", 40, 2, -1, 1, 54.0))
sketch2.addConstraint(Sketcher.Constraint("DistanceX", -1, 1, 44, 2, 15.0))
sketch2.addConstraint(Sketcher.Constraint("DistanceX", -1, 1, 52, 2, 27.0))
sketch2.addConstraint(Sketcher.Constraint("DistanceX", -1, 1, 57, 1, 146.0))
sketch2.addConstraint(Sketcher.Constraint("DistanceX", -1, 1, 64, 2, 108.0))
sketch2.addConstraint(Sketcher.Constraint("DistanceX", 22, 1, 22, 2, 44.487515))
sketch2.addConstraint(Sketcher.Constraint("DistanceY", 20, 1, 20, 2, 84.487515))
pocket1 = body.newObject("PartDesign::Pocket", "Pocket")
pocket1.Profile = sketch2
pocket1.Length = 9.5
pocket1.Reversed = True

doc.recompute()
